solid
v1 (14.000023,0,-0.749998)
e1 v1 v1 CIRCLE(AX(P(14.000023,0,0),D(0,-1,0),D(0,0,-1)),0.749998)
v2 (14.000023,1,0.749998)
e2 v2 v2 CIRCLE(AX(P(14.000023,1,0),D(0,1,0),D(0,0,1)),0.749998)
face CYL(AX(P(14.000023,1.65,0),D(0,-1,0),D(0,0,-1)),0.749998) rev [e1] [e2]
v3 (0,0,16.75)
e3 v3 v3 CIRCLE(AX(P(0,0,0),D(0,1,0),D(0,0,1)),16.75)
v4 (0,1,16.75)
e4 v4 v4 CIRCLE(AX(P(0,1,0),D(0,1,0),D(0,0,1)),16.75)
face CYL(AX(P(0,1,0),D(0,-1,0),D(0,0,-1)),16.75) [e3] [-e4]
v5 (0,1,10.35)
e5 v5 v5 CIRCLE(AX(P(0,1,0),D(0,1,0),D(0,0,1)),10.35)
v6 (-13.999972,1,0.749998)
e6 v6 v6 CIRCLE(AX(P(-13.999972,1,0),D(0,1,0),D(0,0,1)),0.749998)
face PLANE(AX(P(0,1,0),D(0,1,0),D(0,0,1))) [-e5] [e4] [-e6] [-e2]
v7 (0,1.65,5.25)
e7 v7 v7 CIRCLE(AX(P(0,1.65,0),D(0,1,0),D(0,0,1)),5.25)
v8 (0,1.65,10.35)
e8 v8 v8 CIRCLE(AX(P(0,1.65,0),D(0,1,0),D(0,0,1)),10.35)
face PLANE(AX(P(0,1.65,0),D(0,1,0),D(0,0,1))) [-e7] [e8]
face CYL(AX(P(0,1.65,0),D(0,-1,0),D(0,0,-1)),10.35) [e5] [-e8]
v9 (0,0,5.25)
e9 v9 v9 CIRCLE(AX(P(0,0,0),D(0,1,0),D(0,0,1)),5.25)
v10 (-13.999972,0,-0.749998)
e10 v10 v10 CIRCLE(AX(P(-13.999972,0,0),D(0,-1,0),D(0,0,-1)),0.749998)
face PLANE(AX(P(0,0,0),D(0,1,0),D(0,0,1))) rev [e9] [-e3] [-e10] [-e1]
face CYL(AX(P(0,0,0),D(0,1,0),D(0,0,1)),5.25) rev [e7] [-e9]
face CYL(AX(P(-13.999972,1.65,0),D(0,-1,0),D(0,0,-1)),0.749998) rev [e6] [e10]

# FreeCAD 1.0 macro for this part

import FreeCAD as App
import Part
import Sketcher
from FreeCAD import Vector

doc = App.newDocument("Part")
body = doc.addObject("PartDesign::Body", "Body")

# Sketch on XZ plane
sketch1 = body.newObject("Sketcher::SketchObject", "Sketch")
sketch1.AttachmentSupport = (doc.getObject("XZ_Plane"), [""])
sketch1.MapMode = "FlatFace"
sketch1.addGeometry(Part.Circle(Vector(0, 0, 0), Vector(0, 0, 1), 17), False)
sketch1.addConstraint([
    Sketcher.Constraint("Coincident", 0, 3, -1, 1),
    Sketcher.Constraint("Diameter", 0, 33.5),
])
pad1 = body.newObject("PartDesign::Pad", "Pad")
pad1.Profile = sketch1
pad1.Length = 1
pad1.Reversed = True

# Sketch on XZ plane
sketch2 = body.newObject("Sketcher::SketchObject", "Sketch001")
sketch2.AttachmentSupport = (doc.getObject("XZ_Plane"), [""])
sketch2.MapMode = "FlatFace"
sketch2.AttachmentOffset = App.Placement(Vector(0, 0, -1), App.Rotation())
sketch2.addGeometry(Part.Circle(Vector(0, 0, 0), Vector(0, 0, 1), 10), False)
sketch2.addConstraint([
    Sketcher.Constraint("Coincident", 0, 3, -1, 1),
    Sketcher.Constraint("Diameter", 0, 20.7),
])
pad2 = body.newObject("PartDesign::Pad", "Pad001")
pad2.Profile = sketch2
pad2.Length = 0.65
pad2.Reversed = True

# Sketch on XZ plane
sketch3 = body.newObject("Sketcher::SketchObject", "Sketch002")
sketch3.AttachmentSupport = (doc.getObject("XZ_Plane"), [""])
sketch3.MapMode = "FlatFace"
sketch3.AttachmentOffset = App.Placement(Vector(0, 0, -1.65), App.Rotation())
sketch3.addGeometry(Part.Circle(Vector(0, 0, 0), Vector(0, 0, 1), 5), False)
sketch3.addConstraint([
    Sketcher.Constraint("Coincident", 0, 3, -1, 1),
    Sketcher.Constraint("Diameter", 0, 10.5),
])
pocket1 = body.newObject("PartDesign::Pocket", "Pocket")
pocket1.Profile = sketch3
pocket1.Type = "ThroughAll"
pocket1.Reversed = True

# Sketch on XZ plane
sketch4 = body.newObject("Sketcher::SketchObject", "Sketch003")
sketch4.AttachmentSupport = (doc.getObject("XZ_Plane"), [""])
sketch4.MapMode = "FlatFace"
sketch4.addGeometry([
    Part.Circle(Vector(14, 0, 0), Vector(0, 0, 1), 0.7),
    Part.Circle(Vector(-14, 0, 0), Vector(0, 0, 1), 0.7),
], False)
sketch4.addConstraint([
    Sketcher.Constraint("Equal", 0, 1),
    Sketcher.Constraint("PointOnObject", 0, 3, -1),
    Sketcher.Constraint("PointOnObject", 1, 3, -1),
    Sketcher.Constraint("Diameter", 0, 1.499997),
    Sketcher.Constraint("DistanceX", -1, 1, 0, 3, 14.000023),
    Sketcher.Constraint("DistanceX", 1, 3, -1, 1, 13.999972),
])
pocket2 = body.newObject("PartDesign::Pocket", "Pocket001")
pocket2.Profile = sketch4
pocket2.Type = "ThroughAll"

doc.recompute()
